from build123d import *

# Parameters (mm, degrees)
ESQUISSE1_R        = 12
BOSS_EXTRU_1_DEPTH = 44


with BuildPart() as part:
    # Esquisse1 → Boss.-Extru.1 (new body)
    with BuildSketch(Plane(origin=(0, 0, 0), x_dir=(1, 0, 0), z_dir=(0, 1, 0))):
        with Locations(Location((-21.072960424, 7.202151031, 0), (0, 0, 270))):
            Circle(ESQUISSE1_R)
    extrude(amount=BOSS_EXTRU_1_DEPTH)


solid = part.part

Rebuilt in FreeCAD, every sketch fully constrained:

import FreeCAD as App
import Part
import Sketcher

doc = App.newDocument("Part")
params = doc.addObject("Spreadsheet::Sheet", "Params")
for row, (alias, value) in enumerate([
    ("sketch1_diameter", "24 mm"),
    ("pad1_length", "44 mm"),
], start=1):
    params.set(f"A{row}", alias)
    params.set(f"B{row}", "=" + value)
    params.setAlias(f"B{row}", alias)

body = doc.addObject("PartDesign::Body", "Body")

# Sketch on XZ plane
sketch1 = doc.addObject("Sketcher::SketchObject", "Sketch")
body.addObject(sketch1)
sketch1.AttachmentSupport = (doc.XZ_Plane, [""])
sketch1.MapMode = "FlatFace"
sketch1.addGeometry(Part.Circle(App.Vector(-21.07296, -7.202151, 0), App.Vector(0, 0, 1), 12), False)
sketch1.addConstraint(Sketcher.Constraint("Diameter", 0, 24.0))
sketch1.addConstraint(Sketcher.Constraint("DistanceX", 0, 3, -1, 1, 21.07296))
sketch1.addConstraint(Sketcher.Constraint("DistanceY", 0, 3, -1, 1, 7.202151))
sketch1.setExpression("Constraints[0]", "Params.sketch1_diameter")
pad1 = doc.addObject("PartDesign::Pad", "Pad")
body.addObject(pad1)
pad1.Profile = sketch1
pad1.setExpression("Length", "Params.pad1_length")
pad1.Reversed = True

doc.recompute()
